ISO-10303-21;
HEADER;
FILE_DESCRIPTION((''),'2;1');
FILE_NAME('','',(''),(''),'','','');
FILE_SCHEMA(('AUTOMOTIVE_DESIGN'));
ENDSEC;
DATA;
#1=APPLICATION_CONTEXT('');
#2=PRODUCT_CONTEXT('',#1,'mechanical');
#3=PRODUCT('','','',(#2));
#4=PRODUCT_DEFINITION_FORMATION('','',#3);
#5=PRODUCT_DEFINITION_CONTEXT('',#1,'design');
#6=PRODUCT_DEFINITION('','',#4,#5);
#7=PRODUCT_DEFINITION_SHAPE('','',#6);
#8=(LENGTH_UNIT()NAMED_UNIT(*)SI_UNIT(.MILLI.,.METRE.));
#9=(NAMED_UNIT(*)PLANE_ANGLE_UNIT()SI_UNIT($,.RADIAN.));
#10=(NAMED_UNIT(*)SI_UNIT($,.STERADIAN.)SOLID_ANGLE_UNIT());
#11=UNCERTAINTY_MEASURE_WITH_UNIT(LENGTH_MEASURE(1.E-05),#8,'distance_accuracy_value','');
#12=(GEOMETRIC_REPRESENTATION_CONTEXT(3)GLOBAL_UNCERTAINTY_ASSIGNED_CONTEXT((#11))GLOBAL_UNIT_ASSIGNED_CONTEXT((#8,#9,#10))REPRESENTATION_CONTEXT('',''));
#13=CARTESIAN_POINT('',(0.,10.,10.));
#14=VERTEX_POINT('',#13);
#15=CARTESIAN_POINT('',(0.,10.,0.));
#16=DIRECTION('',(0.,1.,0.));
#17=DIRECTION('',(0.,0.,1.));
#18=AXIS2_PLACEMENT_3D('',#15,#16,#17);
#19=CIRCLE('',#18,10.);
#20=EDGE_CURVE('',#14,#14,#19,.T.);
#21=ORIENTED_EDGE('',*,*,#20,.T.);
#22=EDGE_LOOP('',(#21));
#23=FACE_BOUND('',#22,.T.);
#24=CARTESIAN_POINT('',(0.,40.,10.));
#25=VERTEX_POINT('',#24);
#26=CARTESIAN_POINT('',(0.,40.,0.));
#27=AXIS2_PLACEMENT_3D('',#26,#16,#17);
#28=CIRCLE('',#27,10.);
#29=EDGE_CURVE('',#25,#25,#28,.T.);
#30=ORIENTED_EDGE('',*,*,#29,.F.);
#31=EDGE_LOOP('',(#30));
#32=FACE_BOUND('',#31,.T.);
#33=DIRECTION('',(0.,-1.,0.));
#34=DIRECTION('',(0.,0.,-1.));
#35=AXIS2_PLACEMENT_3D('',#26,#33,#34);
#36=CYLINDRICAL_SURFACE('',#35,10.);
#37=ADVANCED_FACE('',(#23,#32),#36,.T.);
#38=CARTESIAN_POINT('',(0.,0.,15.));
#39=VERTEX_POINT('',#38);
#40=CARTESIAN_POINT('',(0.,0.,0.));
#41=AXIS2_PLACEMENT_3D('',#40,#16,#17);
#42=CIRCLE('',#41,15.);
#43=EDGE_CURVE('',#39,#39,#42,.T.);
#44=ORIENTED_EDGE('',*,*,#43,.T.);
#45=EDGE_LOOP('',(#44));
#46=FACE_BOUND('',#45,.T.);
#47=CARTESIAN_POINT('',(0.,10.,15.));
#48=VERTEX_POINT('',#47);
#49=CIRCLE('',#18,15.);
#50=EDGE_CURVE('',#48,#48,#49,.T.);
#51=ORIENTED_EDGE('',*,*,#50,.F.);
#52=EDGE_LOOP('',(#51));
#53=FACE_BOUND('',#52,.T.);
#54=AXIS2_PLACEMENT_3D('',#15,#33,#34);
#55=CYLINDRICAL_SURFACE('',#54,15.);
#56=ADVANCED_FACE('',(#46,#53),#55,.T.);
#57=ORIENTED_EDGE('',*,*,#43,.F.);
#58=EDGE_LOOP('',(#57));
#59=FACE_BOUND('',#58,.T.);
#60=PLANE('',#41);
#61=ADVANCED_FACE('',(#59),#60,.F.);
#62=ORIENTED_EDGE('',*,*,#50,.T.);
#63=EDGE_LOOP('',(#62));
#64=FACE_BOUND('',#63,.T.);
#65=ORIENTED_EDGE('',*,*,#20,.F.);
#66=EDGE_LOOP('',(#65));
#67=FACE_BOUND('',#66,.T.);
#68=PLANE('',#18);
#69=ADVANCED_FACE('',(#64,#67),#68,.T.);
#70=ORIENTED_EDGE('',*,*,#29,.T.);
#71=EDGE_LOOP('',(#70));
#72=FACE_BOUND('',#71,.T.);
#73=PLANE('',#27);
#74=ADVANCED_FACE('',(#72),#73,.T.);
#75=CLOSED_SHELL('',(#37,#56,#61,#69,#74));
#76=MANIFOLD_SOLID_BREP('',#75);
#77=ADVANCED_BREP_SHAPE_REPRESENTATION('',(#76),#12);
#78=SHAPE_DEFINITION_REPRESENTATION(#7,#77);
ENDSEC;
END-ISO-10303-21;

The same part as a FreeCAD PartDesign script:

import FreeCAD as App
import Part
import Sketcher

doc = App.newDocument("Part")
params = doc.addObject("Spreadsheet::Sheet", "Params")
for row, (alias, value) in enumerate([
    ("sketch1_diameter", "30 mm"),
    ("pad1_length", "10 mm"),
    ("sketch2_diameter", "20 mm"),
    ("pad2_length", "30 mm"),
], start=1):
    params.set(f"A{row}", alias)
    params.set(f"B{row}", "=" + value)
    params.setAlias(f"B{row}", alias)

body = doc.addObject("PartDesign::Body", "Body")

# Sketch on XZ plane
sketch1 = body.newObject("Sketcher::SketchObject", "Sketch")
sketch1.AttachmentSupport = (doc.getObject("XZ_Plane"), [""])
sketch1.MapMode = "FlatFace"
sketch1.addGeometry(Part.Circle(App.Vector(0, 0, 0), App.Vector(0, 0, 1), 15), False)
sketch1.addConstraint(Sketcher.Constraint("Coincident", 0, 3, -1, 1))
sketch1.addConstraint(Sketcher.Constraint("Diameter", 0, 30.0))
sketch1.setExpression("Constraints[1]", "Params.sketch1_diameter")
pad1 = body.newObject("PartDesign::Pad", "Pad")
pad1.Profile = sketch1
pad1.setExpression("Length", "Params.pad1_length")
pad1.Reversed = True

# Sketch on XZ plane
sketch2 = body.newObject("Sketcher::SketchObject", "Sketch001")
sketch2.AttachmentSupport = (doc.getObject("XZ_Plane"), [""])
sketch2.MapMode = "FlatFace"
sketch2.AttachmentOffset = App.Placement(App.Vector(0, 0, -10), App.Rotation())
sketch2.addGeometry(Part.Circle(App.Vector(0, 0, 0), App.Vector(0, 0, 1), 10), False)
sketch2.addConstraint(Sketcher.Constraint("Coincident", 0, 3, -1, 1))
sketch2.addConstraint(Sketcher.Constraint("Diameter", 0, 20.0))
sketch2.setExpression("Constraints[1]", "Params.sketch2_diameter")
pad2 = body.newObject("PartDesign::Pad", "Pad001")
pad2.Profile = sketch2
pad2.setExpression("Length", "Params.pad2_length")
pad2.Reversed = True

doc.recompute()
